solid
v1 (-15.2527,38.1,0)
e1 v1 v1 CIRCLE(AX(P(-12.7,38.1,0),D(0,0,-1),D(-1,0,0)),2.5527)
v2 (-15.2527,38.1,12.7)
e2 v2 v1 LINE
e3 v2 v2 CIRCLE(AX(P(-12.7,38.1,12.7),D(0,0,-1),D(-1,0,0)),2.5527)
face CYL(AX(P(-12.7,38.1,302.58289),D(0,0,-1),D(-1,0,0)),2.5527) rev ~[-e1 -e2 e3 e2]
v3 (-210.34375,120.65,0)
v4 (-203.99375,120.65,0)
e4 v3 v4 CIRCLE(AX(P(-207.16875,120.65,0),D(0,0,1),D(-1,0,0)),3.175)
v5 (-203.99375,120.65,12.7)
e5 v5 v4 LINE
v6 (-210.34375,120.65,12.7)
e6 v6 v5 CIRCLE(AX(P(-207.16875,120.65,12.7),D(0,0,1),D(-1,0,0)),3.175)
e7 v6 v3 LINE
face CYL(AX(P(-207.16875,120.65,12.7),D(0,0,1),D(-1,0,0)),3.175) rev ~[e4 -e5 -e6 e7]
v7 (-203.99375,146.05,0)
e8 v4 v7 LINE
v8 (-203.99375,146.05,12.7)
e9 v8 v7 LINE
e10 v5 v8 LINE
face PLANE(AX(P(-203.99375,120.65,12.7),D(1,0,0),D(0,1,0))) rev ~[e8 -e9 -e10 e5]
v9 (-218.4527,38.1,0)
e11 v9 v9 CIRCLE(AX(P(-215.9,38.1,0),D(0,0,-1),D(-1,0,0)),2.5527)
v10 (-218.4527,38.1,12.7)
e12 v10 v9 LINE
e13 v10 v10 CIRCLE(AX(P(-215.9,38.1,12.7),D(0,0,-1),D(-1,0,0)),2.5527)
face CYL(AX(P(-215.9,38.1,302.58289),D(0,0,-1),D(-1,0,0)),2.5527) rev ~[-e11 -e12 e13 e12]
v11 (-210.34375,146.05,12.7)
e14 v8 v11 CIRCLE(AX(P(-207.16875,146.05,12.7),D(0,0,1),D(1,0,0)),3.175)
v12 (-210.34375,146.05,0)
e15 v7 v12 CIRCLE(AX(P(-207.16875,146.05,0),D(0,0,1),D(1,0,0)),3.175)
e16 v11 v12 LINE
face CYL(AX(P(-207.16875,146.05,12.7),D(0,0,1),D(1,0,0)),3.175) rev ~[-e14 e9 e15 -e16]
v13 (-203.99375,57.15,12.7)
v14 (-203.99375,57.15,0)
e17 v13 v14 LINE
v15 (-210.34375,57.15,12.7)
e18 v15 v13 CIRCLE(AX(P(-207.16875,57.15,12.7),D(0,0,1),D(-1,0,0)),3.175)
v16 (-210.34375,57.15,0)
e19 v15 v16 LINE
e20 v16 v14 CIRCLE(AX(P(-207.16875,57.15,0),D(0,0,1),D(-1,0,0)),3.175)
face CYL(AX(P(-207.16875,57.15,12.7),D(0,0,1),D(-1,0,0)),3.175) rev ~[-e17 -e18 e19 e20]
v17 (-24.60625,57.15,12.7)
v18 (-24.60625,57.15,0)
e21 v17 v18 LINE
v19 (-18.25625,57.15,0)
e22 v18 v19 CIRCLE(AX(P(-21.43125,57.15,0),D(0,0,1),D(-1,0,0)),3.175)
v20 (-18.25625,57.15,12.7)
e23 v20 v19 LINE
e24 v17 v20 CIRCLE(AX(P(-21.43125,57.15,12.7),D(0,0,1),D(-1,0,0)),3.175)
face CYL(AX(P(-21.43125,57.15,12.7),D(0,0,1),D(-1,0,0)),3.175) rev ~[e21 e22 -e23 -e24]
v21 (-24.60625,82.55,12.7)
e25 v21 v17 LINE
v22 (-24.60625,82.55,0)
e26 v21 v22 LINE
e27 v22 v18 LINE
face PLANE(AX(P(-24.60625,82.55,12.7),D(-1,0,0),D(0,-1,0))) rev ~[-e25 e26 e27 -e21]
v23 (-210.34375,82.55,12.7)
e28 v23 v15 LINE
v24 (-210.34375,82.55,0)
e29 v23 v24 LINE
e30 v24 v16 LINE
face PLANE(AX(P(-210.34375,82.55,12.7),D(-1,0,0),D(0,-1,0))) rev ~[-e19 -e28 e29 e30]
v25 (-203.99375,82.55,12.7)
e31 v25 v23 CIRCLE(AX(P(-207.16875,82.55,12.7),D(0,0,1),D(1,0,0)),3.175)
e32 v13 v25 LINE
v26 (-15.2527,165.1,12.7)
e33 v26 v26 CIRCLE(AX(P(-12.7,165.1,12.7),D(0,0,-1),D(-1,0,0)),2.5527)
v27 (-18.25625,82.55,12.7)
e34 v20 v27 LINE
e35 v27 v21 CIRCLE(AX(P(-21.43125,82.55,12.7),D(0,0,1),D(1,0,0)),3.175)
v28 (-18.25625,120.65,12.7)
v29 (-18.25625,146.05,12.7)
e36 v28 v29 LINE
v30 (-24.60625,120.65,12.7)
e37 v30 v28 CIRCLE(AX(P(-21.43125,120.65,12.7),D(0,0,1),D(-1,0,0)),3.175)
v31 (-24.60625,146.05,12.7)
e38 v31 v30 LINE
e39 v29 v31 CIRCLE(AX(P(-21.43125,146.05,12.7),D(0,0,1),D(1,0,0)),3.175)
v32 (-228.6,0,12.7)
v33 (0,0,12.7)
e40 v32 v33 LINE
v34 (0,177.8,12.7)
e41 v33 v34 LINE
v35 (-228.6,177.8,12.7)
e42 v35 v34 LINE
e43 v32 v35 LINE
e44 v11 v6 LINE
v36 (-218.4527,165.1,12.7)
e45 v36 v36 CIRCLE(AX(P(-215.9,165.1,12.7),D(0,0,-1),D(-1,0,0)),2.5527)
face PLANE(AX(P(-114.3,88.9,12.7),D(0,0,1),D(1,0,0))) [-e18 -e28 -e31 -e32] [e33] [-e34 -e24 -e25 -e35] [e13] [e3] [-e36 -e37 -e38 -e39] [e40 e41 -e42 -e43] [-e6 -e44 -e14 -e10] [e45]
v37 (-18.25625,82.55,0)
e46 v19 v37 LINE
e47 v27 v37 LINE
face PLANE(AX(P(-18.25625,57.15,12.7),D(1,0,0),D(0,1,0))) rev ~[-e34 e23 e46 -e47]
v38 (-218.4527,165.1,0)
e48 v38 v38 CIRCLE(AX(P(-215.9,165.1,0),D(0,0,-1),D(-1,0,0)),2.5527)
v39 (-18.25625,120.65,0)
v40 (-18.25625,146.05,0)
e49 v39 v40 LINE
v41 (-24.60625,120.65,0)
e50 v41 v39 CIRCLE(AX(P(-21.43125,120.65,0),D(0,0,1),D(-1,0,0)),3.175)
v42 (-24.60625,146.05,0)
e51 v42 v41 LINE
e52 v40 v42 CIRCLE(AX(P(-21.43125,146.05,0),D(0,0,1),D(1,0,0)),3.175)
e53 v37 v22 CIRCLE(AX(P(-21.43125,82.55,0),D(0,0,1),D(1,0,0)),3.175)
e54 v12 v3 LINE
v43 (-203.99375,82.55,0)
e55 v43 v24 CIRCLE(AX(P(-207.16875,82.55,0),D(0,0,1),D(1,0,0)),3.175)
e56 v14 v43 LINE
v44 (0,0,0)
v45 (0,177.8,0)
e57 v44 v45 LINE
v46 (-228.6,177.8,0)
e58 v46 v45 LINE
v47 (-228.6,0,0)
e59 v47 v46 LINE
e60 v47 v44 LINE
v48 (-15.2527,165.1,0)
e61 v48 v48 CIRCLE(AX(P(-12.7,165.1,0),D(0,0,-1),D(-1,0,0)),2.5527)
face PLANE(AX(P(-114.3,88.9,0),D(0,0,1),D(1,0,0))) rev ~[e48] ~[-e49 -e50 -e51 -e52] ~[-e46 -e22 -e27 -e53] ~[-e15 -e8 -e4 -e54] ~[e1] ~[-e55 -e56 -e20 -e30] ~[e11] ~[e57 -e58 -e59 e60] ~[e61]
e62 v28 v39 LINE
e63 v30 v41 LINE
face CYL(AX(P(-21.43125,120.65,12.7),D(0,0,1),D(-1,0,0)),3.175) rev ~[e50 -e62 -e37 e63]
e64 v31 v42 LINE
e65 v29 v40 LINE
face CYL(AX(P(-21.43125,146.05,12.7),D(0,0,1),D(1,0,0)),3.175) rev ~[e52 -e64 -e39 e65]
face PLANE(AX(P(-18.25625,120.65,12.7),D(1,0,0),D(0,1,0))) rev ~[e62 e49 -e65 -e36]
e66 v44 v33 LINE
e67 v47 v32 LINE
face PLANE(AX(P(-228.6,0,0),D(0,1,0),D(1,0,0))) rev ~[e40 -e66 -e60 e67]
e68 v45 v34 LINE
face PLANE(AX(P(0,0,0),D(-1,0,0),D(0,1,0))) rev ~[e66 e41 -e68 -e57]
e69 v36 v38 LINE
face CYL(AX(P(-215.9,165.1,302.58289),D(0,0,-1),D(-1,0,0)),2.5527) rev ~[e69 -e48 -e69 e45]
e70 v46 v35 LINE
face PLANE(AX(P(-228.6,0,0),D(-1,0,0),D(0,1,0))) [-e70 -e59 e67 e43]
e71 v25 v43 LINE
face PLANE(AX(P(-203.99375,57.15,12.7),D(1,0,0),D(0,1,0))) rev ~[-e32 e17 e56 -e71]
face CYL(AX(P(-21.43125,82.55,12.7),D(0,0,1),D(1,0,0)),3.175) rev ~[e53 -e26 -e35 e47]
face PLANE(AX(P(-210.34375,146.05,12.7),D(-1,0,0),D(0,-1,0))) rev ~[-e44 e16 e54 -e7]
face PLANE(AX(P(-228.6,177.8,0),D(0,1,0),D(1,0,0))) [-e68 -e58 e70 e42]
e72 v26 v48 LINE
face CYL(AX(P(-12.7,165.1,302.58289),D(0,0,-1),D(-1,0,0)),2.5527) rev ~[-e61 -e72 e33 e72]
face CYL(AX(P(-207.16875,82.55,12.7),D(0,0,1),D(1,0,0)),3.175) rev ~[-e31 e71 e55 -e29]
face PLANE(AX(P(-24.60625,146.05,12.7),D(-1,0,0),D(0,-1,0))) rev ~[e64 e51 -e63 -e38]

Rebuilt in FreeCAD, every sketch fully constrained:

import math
import FreeCAD as App
import Part
import Sketcher

V = App.Vector
Q = App.Units.Quantity


def add_polygon(sketch, points):
    """Adds a closed chain of lines whose ends are joined by coincident constraints."""
    first, n = sketch.GeometryCount, len(points)
    for a, b in zip(points, points[1:] + points[:1]):
        sketch.addGeometry(Part.LineSegment(App.Vector(*a, 0), App.Vector(*b, 0)), False)
    for i in range(n):
        sketch.addConstraint(Sketcher.Constraint("Coincident", first + i, 2, first + (i + 1) % n, 1))

doc = App.newDocument("Part")
body = doc.addObject("PartDesign::Body", "Body")

# Sketch on XY plane
sketch1 = body.newObject("Sketcher::SketchObject", "Sketch")
sketch1.AttachmentSupport = (doc.getObject("XY_Plane"), [""])
sketch1.MapMode = "FlatFace"
add_polygon(sketch1, [(-228.6, 177.8), (-228.6, 0), (0, 0), (0, 177.8)])  # lines 0-3
sketch1.addConstraint([
    Sketcher.Constraint("Vertical", 0),
    Sketcher.Constraint("Horizontal", 1),
    Sketcher.Constraint("Vertical", 2),
    Sketcher.Constraint("Horizontal", 3),
    Sketcher.Constraint("Coincident", 1, 2, -1, 1),
    Sketcher.Constraint("DistanceX", 1, 1, 1, 2, Q("9 in")),
    Sketcher.Constraint("DistanceY", 0, 2, 0, 1, Q("7 in")),
])
pad1 = body.newObject("PartDesign::Pad", "Pad")
pad1.Profile = sketch1
pad1.Length = Q("0.5 in")

# Sketch on XY plane
sketch2 = body.newObject("Sketcher::SketchObject", "Sketch001")
sketch2.AttachmentSupport = (doc.getObject("XY_Plane"), [""])
sketch2.MapMode = "FlatFace"
sketch2.AttachmentOffset = App.Placement(V(0, 0, 0.5 * 25.4), App.Rotation())
sketch2.addGeometry([
    Part.Circle(V(-12.7, 38.1, 0), V(0, 0, 1), 2.5527),
    Part.Circle(V(-12.7, 165.1, 0), V(0, 0, 1), 2.5527),
    Part.Circle(V(-215.9, 38.1, 0), V(0, 0, 1), 2.5527),
    Part.Circle(V(-215.9, 165.1, 0), V(0, 0, 1), 2.5527),
], False)
sketch2.addConstraint([
    Sketcher.Constraint("Equal", 0, 1),
    Sketcher.Constraint("Equal", 1, 2),
    Sketcher.Constraint("Equal", 2, 3),
    Sketcher.Constraint("Horizontal", 0, 3, 2, 3),
    Sketcher.Constraint("Horizontal", 1, 3, 3, 3),
    Sketcher.Constraint("Vertical", 0, 3, 1, 3),
    Sketcher.Constraint("Vertical", 2, 3, 3, 3),
    Sketcher.Constraint("Diameter", 0, Q("0.201 in")),
    Sketcher.Constraint("DistanceY", 0, 3, 1, 3, Q("5 in")),
    Sketcher.Constraint("DistanceX", 2, 3, 0, 3, Q("8 in")),
    Sketcher.Constraint("DistanceX", 0, 3, -1, 1, Q("0.5 in")),
    Sketcher.Constraint("DistanceY", -1, 1, 0, 3, Q("1.5 in")),
])
doc.recompute()
hole = body.newObject("PartDesign::Hole", "Hole")
hole.Profile = sketch2
hole.ThreadType = "None"
hole.Diameter = Q("0.201 in")
hole.DepthType = "ThroughAll"

# Sketch on XY plane
sketch3 = body.newObject("Sketcher::SketchObject", "Sketch002")
sketch3.AttachmentSupport = (doc.getObject("XY_Plane"), [""])
sketch3.MapMode = "FlatFace"
sketch3.AttachmentOffset = App.Placement(V(0, 0, 0.5 * 25.4), App.Rotation())
sketch3.addGeometry([
    Part.ArcOfCircle(Part.Circle(V(-21.43125, 120.65, 0), V(0, 0, 1), 3.175), math.radians(180), math.radians(360)),  # 0
    Part.LineSegment(V(-18.25625, 120.65, 0), V(-18.25625, 146.05, 0)),  # 1
    Part.ArcOfCircle(Part.Circle(V(-21.43125, 146.05, 0), V(0, 0, 1), 3.175), math.radians(0), math.radians(180)),  # 2
    Part.LineSegment(V(-24.60625, 146.05, 0), V(-24.60625, 120.65, 0)),  # 3
    Part.ArcOfCircle(Part.Circle(V(-21.43125, 82.55, 0), V(0, 0, 1), 3.175), math.radians(0), math.radians(180)),  # 4
    Part.LineSegment(V(-24.60625, 82.55, 0), V(-24.60625, 57.15, 0)),  # 5
    Part.ArcOfCircle(Part.Circle(V(-21.43125, 57.15, 0), V(0, 0, 1), 3.175), math.radians(180), math.radians(360)),  # 6
    Part.LineSegment(V(-18.25625, 57.15, 0), V(-18.25625, 82.55, 0)),  # 7
    Part.LineSegment(V(-203.99375, 120.65, 0), V(-203.99375, 146.05, 0)),  # 8
    Part.ArcOfCircle(Part.Circle(V(-207.16875, 146.05, 0), V(0, 0, 1), 3.175), math.radians(0), math.radians(180)),  # 9
    Part.LineSegment(V(-210.34375, 146.05, 0), V(-210.34375, 120.65, 0)),  # 10
    Part.ArcOfCircle(Part.Circle(V(-207.16875, 120.65, 0), V(0, 0, 1), 3.175), math.radians(180), math.radians(360)),  # 11
    Part.ArcOfCircle(Part.Circle(V(-207.16875, 57.15, 0), V(0, 0, 1), 3.175), math.radians(180), math.radians(360)),  # 12
    Part.LineSegment(V(-203.99375, 57.15, 0), V(-203.99375, 82.55, 0)),  # 13
    Part.ArcOfCircle(Part.Circle(V(-207.16875, 82.55, 0), V(0, 0, 1), 3.175), math.radians(0), math.radians(180)),  # 14
    Part.LineSegment(V(-210.34375, 82.55, 0), V(-210.34375, 57.15, 0)),  # 15
], False)
sketch3.addConstraint([
    Sketcher.Constraint("Tangent", 0, 2, 1, 1),
    Sketcher.Constraint("Tangent", 1, 2, 2, 1),
    Sketcher.Constraint("Tangent", 2, 2, 3, 1),
    Sketcher.Constraint("Tangent", 3, 2, 0, 1),
    Sketcher.Constraint("Tangent", 4, 2, 5, 1),
    Sketcher.Constraint("Tangent", 5, 2, 6, 1),
    Sketcher.Constraint("Tangent", 6, 2, 7, 1),
    Sketcher.Constraint("Tangent", 7, 2, 4, 1),
    Sketcher.Constraint("Tangent", 8, 2, 9, 1),
    Sketcher.Constraint("Tangent", 9, 2, 10, 1),
    Sketcher.Constraint("Tangent", 10, 2, 11, 1),
    Sketcher.Constraint("Tangent", 11, 2, 8, 1),
    Sketcher.Constraint("Tangent", 12, 2, 13, 1),
    Sketcher.Constraint("Tangent", 13, 2, 14, 1),
    Sketcher.Constraint("Tangent", 14, 2, 15, 1),
    Sketcher.Constraint("Tangent", 15, 2, 12, 1),
    Sketcher.Constraint("Vertical", 1),
    Sketcher.Constraint("Vertical", 3),
    Sketcher.Constraint("Vertical", 5),
    Sketcher.Constraint("Vertical", 7),
    Sketcher.Constraint("Vertical", 8),
    Sketcher.Constraint("Vertical", 10),
    Sketcher.Constraint("Vertical", 13),
    Sketcher.Constraint("Vertical", 15),
    Sketcher.Constraint("Equal", 2, 4),
    Sketcher.Constraint("Equal", 6, 9),
    Sketcher.Constraint("Equal", 11, 12),
    Sketcher.Constraint("Horizontal", 2, 3, 9, 3),
    Sketcher.Constraint("Horizontal", 0, 3, 11, 3),
    Sketcher.Constraint("Horizontal", 6, 3, 12, 3),
    Sketcher.Constraint("Horizontal", 4, 3, 14, 3),
    Sketcher.Constraint("Vertical", 2, 3, 4, 3),
    Sketcher.Constraint("Vertical", 11, 3, 12, 3),
    Sketcher.Constraint("Equal", 3, 5),
    Sketcher.Constraint("DistanceY", 1, 1, 1, 2, Q("1 in")),
    Sketcher.Constraint("Radius", 0, Q("0.125 in")),
    Sketcher.Constraint("DistanceY", 4, 3, 0, 3, Q("1.5 in")),
    Sketcher.Constraint("DistanceY", -1, 1, 0, 3, Q("4.75 in")),
    Sketcher.Constraint("DistanceX", 0, 3, -1, 1, Q("0.84375 in")),
    Sketcher.Constraint("DistanceX", 9, 3, -1, 1, Q("8.15625 in")),
])
pocket1 = body.newObject("PartDesign::Pocket", "Pocket")
pocket1.Profile = sketch3
pocket1.Type = "ThroughAll"

doc.recompute()
